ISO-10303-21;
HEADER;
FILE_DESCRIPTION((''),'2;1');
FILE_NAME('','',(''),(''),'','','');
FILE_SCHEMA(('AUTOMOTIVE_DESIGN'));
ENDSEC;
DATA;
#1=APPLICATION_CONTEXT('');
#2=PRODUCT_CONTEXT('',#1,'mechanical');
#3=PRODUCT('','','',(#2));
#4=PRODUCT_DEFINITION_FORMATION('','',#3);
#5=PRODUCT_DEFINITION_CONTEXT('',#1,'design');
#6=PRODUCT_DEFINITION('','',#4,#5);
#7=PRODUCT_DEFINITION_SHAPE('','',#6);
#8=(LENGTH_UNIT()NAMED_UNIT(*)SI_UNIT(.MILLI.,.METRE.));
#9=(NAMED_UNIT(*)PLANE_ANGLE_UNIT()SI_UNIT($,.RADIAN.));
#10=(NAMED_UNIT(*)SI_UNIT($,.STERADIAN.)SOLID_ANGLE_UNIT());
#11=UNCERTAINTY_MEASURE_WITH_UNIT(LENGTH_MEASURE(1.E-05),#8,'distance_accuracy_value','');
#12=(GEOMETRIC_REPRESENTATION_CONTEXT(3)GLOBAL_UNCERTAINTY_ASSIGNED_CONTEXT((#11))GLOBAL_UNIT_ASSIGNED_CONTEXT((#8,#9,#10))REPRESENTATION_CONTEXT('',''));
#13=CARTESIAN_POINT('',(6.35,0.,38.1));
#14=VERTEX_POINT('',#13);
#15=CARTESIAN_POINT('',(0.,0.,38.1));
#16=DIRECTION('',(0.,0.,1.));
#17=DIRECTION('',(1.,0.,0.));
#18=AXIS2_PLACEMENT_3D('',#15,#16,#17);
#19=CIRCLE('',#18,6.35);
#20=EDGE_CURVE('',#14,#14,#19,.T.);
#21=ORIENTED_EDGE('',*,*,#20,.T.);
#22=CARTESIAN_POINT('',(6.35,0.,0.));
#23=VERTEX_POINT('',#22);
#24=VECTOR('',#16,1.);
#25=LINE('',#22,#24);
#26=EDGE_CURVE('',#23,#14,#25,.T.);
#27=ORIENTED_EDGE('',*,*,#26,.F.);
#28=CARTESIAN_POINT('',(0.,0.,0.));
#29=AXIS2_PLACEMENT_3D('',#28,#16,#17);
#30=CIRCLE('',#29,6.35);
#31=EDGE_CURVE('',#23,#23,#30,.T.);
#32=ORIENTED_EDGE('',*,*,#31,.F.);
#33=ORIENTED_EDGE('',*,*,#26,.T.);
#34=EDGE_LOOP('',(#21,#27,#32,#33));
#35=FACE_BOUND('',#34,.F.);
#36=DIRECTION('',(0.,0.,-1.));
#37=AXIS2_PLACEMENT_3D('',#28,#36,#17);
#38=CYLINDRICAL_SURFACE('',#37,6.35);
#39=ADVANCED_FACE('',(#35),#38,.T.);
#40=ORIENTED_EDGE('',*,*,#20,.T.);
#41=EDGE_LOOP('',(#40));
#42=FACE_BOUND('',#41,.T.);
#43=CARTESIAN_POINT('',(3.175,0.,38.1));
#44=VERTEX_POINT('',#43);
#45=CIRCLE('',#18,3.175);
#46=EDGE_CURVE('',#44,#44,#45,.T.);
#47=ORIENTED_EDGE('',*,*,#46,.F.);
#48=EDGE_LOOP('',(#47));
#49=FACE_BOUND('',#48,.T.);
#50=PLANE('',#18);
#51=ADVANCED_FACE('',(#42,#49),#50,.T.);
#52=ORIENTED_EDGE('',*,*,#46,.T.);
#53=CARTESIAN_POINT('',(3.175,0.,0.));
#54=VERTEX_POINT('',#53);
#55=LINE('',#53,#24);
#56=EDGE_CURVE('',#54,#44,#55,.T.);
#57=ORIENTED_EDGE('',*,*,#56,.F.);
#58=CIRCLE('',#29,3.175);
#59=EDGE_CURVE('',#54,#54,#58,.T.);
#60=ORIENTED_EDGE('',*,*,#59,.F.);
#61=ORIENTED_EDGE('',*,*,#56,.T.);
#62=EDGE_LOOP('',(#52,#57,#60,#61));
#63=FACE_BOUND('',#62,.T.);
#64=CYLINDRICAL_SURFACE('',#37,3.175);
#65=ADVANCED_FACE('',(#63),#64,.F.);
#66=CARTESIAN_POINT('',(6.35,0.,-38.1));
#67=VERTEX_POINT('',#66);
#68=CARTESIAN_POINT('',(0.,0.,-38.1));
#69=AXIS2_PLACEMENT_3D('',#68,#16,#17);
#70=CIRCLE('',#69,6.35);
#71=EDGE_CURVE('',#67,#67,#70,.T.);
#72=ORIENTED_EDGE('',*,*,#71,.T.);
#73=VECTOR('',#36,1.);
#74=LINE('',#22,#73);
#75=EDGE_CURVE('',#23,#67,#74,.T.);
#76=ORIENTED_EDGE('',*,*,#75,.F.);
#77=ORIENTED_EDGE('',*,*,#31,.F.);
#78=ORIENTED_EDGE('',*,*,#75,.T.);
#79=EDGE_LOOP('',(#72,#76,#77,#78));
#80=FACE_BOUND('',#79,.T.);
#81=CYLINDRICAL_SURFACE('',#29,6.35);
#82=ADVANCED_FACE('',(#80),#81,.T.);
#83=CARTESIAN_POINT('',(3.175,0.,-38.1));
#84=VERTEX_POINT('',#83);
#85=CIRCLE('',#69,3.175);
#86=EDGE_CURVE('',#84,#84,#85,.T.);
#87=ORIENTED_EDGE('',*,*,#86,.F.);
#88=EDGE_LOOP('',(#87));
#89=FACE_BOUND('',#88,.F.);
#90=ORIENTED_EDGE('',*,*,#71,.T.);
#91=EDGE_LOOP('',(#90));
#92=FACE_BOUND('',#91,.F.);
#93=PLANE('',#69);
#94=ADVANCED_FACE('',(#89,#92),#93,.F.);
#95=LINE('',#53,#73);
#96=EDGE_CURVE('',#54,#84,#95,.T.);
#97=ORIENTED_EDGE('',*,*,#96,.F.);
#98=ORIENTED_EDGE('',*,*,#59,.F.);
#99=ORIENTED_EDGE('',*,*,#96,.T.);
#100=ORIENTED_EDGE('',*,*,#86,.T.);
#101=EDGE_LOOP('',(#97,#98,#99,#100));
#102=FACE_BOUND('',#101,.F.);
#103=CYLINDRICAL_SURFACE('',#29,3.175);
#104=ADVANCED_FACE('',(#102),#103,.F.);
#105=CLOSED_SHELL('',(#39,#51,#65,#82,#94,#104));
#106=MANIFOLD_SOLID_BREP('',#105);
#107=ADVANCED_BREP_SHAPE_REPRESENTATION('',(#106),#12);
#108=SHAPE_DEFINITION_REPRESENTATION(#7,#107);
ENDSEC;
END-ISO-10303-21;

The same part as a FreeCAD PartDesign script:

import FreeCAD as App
import Part
import Sketcher

V = App.Vector
Q = App.Units.Quantity

doc = App.newDocument("Part")
body = doc.addObject("PartDesign::Body", "Body")

# Sketch on XY plane
sketch1 = body.newObject("Sketcher::SketchObject", "Sketch")
sketch1.AttachmentSupport = (doc.getObject("XY_Plane"), [""])
sketch1.MapMode = "FlatFace"
sketch1.addGeometry([
    Part.Circle(V(0, 0, 0), V(0, 0, 1), 6.35),
    Part.Circle(V(0, 0, 0), V(0, 0, 1), 3.175),
], False)
sketch1.addConstraint([
    Sketcher.Constraint("Coincident", 0, 3, -1, 1),
    Sketcher.Constraint("Coincident", 1, 3, -1, 1),
    Sketcher.Constraint("Diameter", 0, Q("0.5 in")),
    Sketcher.Constraint("Diameter", 1, Q("0.25 in")),
])
pad1 = body.newObject("PartDesign::Pad", "Pad")
pad1.Profile = sketch1
pad1.Length = Q("3 in")
pad1.Midplane = True

doc.recompute()
